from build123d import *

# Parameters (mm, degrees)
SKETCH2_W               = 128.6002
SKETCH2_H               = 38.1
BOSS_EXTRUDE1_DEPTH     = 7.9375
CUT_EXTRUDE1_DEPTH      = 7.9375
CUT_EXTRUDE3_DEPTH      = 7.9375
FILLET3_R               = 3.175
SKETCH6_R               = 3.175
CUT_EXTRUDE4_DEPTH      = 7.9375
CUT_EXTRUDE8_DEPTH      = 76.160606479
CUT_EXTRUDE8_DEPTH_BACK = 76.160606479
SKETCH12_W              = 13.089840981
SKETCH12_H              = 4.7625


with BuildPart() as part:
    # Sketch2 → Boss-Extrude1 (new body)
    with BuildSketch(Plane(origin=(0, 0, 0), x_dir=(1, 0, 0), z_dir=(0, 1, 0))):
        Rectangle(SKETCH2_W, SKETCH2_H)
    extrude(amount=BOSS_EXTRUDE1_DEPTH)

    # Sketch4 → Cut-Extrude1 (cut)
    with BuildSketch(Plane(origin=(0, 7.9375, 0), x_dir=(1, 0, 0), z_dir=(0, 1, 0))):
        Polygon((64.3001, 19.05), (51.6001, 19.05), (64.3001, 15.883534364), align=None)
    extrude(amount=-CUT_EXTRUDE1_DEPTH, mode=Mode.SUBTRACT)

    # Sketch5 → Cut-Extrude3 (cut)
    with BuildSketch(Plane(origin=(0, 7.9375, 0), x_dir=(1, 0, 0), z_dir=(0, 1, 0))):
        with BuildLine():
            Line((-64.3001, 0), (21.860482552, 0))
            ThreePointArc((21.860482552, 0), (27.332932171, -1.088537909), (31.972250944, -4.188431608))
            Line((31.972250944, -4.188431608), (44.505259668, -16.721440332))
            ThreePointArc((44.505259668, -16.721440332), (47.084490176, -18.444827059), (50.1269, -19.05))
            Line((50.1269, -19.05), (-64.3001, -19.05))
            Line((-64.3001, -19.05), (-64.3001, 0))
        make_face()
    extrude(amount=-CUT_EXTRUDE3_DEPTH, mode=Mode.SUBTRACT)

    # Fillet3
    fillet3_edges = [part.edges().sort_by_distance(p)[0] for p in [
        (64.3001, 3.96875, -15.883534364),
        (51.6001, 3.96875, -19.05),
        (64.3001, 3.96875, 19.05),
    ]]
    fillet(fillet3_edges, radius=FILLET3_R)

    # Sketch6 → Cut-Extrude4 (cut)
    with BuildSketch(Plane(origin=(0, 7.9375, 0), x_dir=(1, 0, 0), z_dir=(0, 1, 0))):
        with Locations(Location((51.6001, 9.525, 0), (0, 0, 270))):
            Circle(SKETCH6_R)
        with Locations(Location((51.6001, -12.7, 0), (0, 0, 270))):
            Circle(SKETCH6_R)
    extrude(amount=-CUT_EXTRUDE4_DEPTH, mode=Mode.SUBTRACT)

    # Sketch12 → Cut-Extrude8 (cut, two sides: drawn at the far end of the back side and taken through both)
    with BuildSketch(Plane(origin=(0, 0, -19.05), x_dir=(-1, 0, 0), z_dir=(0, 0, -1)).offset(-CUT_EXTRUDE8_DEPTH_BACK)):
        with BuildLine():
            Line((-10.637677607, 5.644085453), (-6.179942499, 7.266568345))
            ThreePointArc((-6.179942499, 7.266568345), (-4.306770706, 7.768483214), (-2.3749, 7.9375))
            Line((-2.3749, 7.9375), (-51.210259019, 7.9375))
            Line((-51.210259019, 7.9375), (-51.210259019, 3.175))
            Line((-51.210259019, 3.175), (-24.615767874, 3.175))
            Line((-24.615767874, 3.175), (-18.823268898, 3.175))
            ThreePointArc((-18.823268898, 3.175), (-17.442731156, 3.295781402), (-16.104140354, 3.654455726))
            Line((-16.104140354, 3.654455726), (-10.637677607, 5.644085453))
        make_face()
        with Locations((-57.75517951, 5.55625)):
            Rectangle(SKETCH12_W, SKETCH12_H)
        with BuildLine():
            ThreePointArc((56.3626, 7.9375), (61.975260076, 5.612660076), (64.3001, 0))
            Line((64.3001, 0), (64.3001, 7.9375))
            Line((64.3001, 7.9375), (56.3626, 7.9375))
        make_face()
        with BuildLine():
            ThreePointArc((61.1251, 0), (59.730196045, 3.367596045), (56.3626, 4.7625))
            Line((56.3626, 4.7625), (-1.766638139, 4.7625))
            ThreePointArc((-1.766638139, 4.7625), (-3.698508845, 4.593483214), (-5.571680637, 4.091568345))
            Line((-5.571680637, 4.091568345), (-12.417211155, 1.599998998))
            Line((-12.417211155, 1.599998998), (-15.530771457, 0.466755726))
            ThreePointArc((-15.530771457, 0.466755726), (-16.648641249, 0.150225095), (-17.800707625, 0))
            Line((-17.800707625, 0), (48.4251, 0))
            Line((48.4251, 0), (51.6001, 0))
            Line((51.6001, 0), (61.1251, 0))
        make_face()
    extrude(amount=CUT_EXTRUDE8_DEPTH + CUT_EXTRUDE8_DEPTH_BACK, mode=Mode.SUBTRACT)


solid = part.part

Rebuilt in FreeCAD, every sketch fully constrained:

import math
import FreeCAD as App
import Part
import Sketcher
Q = App.Units.Quantity


def edges_at(feature, points):
    """Names of the edges that pass closest to the given points."""
    edges = feature.Shape.Edges
    near = lambda p: min(range(len(edges)), key=lambda i: edges[i].distToShape(Part.Vertex(*p))[0])
    return sorted({f"Edge{near(p) + 1}" for p in points})


def add_polygon(sketch, points):
    """Adds a closed chain of lines whose ends are joined by coincident constraints."""
    first, n = sketch.GeometryCount, len(points)
    for a, b in zip(points, points[1:] + points[:1]):
        sketch.addGeometry(Part.LineSegment(App.Vector(*a, 0), App.Vector(*b, 0)), False)
    for i in range(n):
        sketch.addConstraint(Sketcher.Constraint("Coincident", first + i, 2, first + (i + 1) % n, 1))

doc = App.newDocument("Part")
params = doc.addObject("Spreadsheet::Sheet", "Params")
for row, (alias, value) in enumerate([
    ("sketch1_height", "1.5 in"),
    ("sketch1_width", "5.063 in"),
    ("pad1_length", "0.3125 in"),
    ("sketch2_width", "0.5 in"),
    ("pocket1_length", "0.3125 in"),
    ("sketch3_radius", "0.313 in"),
    ("sketch3_radius2", "0.563 in"),
    ("sketch3_height", "0.75 in"),
    ("sketch3_width", "4.505 in"),
    ("pocket2_length", "0.3125 in"),
    ("fillet_radius", "0.125 in"),
    ("sketch4_diameter", "0.25 in"),
    ("pocket3_length", "0.3125 in"),
    ("sketch5_radius", "0.438 in"),
    ("sketch5_radius2", "0.313 in"),
    ("sketch5_radius3", "0.3125 in"),
    ("sketch5_radius4", "0.1875 in"),
    ("sketch5_width", "2.438 in"),
], start=1):
    params.set(f"A{row}", alias)
    params.set(f"B{row}", "=" + value)
    params.setAlias(f"B{row}", alias)

body = doc.addObject("PartDesign::Body", "Body")

sketch1 = body.newObject("Sketcher::SketchObject", "Sketch")
sketch1.AttachmentSupport = (doc.getObject("XZ_Plane"), [""])
sketch1.MapMode = "FlatFace"
add_polygon(sketch1, [(-64, -19), (-64, 19), (64, 19), (64, -19)])
sketch1.addConstraint([
    Sketcher.Constraint("Vertical", 0),
    Sketcher.Constraint("Horizontal", 1),
    Sketcher.Constraint("Vertical", 2),
    Sketcher.Constraint("Horizontal", 3),
    Sketcher.Constraint("Symmetric", 0, 2, 2, 2, -1, 1),
    Sketcher.Constraint("DistanceY", 0, 1, 0, 2, Q("1.5 in")),
    Sketcher.Constraint("DistanceX", 1, 1, 1, 2, Q("5.063 in")),
])
sketch1.setExpression("Constraints[9]", "Params.sketch1_height")
sketch1.setExpression("Constraints[10]", "Params.sketch1_width")
pad1 = body.newObject("PartDesign::Pad", "Pad")
pad1.Profile = sketch1
pad1.setExpression("Length", "Params.pad1_length")
pad1.Reversed = True

sketch2 = body.newObject("Sketcher::SketchObject", "Sketch001")
sketch2.AttachmentSupport = (doc.getObject("XZ_Plane"), [""])
sketch2.MapMode = "FlatFace"
sketch2.AttachmentOffset = App.Placement(App.Vector(0, 0, -0.3125 * 25.4), App.Rotation())
add_polygon(sketch2, [(64.3, -19.1), (51.6, -19.1), (64.3, -15.9)])
sketch2.addConstraint([
    Sketcher.Constraint("Horizontal", 0),
    Sketcher.Constraint("Vertical", 2),
    Sketcher.Constraint("DistanceX", 0, 2, 0, 1, Q("0.5 in")),
    Sketcher.Constraint("Angle", 1, Q("14 deg")),
    Sketcher.Constraint("DistanceY", 0, 2, -1, 1, Q("0.75 in")),
    Sketcher.Constraint("DistanceX", -1, 1, 0, 2, Q("2.0315 in")),
])
sketch2.setExpression("Constraints[5]", "Params.sketch2_width")
pocket1 = body.newObject("PartDesign::Pocket", "Pocket")
pocket1.Profile = sketch2
pocket1.setExpression("Length", "Params.pocket1_length")
pocket1.Reversed = True

sketch3 = body.newObject("Sketcher::SketchObject", "Sketch002")
sketch3.AttachmentSupport = (doc.getObject("XZ_Plane"), [""])
sketch3.MapMode = "FlatFace"
sketch3.AttachmentOffset = App.Placement(App.Vector(0, 0, -0.3125 * 25.4), App.Rotation())
sketch3.addGeometry([
    Part.LineSegment(App.Vector(22, 0, 0), App.Vector(-64, 0, 0)),
    Part.LineSegment(App.Vector(-64, 0, 0), App.Vector(-64, 19, 0)),
    Part.LineSegment(App.Vector(-64, 19, 0), App.Vector(50, 19, 0)),
    Part.ArcOfCircle(Part.Circle(App.Vector(50, 11, 0), App.Vector(0, 0, 1), 8), math.radians(90), math.radians(135)),
    Part.LineSegment(App.Vector(45, 17, 0), App.Vector(32, 4, 0)),
    Part.ArcOfCircle(Part.Circle(App.Vector(22, 14, 0), App.Vector(0, 0, 1), 14), math.radians(-90), math.radians(-45)),
], False)
sketch3.addConstraint([
    Sketcher.Constraint("Coincident", 0, 2, 1, 1),
    Sketcher.Constraint("Coincident", 1, 2, 2, 1),
    Sketcher.Constraint("Tangent", 2, 2, 3, 1),
    Sketcher.Constraint("Tangent", 3, 2, 4, 1),
    Sketcher.Constraint("Tangent", 4, 2, 5, 2),
    Sketcher.Constraint("Tangent", 5, 1, 0, 1),
    Sketcher.Constraint("Horizontal", 0),
    Sketcher.Constraint("Vertical", 1),
    Sketcher.Constraint("Horizontal", 2),
    Sketcher.Constraint("PointOnObject", 0, 2, -1),
    Sketcher.Constraint("Angle", 4, Q("-135 deg")),
    Sketcher.Constraint("Radius", 3, Q("0.313 in")),
    Sketcher.Constraint("Radius", 5, Q("0.563 in")),
    Sketcher.Constraint("DistanceY", 1, 1, 1, 2, Q("0.75 in")),
    Sketcher.Constraint("DistanceX", 2, 1, 2, 2, Q("4.505 in")),
    Sketcher.Constraint("DistanceX", -1, 1, 3, 3, Q("1.9735 in")),
])
sketch3.setExpression("Constraints[11]", "Params.sketch3_radius")
sketch3.setExpression("Constraints[12]", "Params.sketch3_radius2")
sketch3.setExpression("Constraints[13]", "Params.sketch3_height")
sketch3.setExpression("Constraints[14]", "Params.sketch3_width")
pocket2 = body.newObject("PartDesign::Pocket", "Pocket001")
pocket2.Profile = sketch3
pocket2.setExpression("Length", "Params.pocket2_length")
pocket2.Reversed = True
doc.recompute()

fillet = body.newObject("PartDesign::Fillet", "Fillet")
fillet.Base = (pocket2, edges_at(pocket2, [(64.3, 3.969, -15.884), (51.6, 3.969, -19.05), (64.3, 3.969, 19.05)]))
fillet.setExpression("Radius", "Params.fillet_radius")

sketch4 = body.newObject("Sketcher::SketchObject", "Sketch003")
sketch4.AttachmentSupport = (doc.getObject("XZ_Plane"), [""])
sketch4.MapMode = "FlatFace"
sketch4.AttachmentOffset = App.Placement(App.Vector(0, 0, -0.3125 * 25.4), App.Rotation())
sketch4.addGeometry([
    Part.Circle(App.Vector(51.6, -9.5, 0), App.Vector(0, 0, 1), 3.2),
    Part.Circle(App.Vector(51.6, 12.7, 0), App.Vector(0, 0, 1), 3.2),
], False)
sketch4.addConstraint([
    Sketcher.Constraint("Equal", 0, 1),
    Sketcher.Constraint("Vertical", 0, 3, 1, 3),
    Sketcher.Constraint("Diameter", 0, Q("0.25 in")),
    Sketcher.Constraint("DistanceY", -1, 1, 1, 3, Q("0.5 in")),
    Sketcher.Constraint("DistanceY", 0, 3, -1, 1, Q("0.375 in")),
    Sketcher.Constraint("DistanceX", -1, 1, 0, 3, Q("2.0315 in")),
])
sketch4.setExpression("Constraints[2]", "Params.sketch4_diameter")
pocket3 = body.newObject("PartDesign::Pocket", "Pocket002")
pocket3.Profile = sketch4
pocket3.setExpression("Length", "Params.pocket3_length")
pocket3.Reversed = True

sketch5 = body.newObject("Sketcher::SketchObject", "Sketch004")
sketch5.AttachmentSupport = (doc.getObject("XY_Plane"), [""])
sketch5.MapMode = "FlatFace"
sketch5.AttachmentOffset = App.Placement(App.Vector(0, 0, -0.75 * 25.4), App.Rotation())
sketch5.addGeometry([
    Part.LineSegment(App.Vector(10.6, 5.6, 0), App.Vector(6.2, 7.3, 0)),
    Part.ArcOfCircle(Part.Circle(App.Vector(2.4, -3.2, 0), App.Vector(0, 0, 1), 11.1), math.radians(70), math.radians(90)),
    Part.LineSegment(App.Vector(2.4, 7.9, 0), App.Vector(64.3, 7.9, 0)),
    Part.LineSegment(App.Vector(64.3, 7.9, 0), App.Vector(64.3, 3.2, 0)),
    Part.LineSegment(App.Vector(64.3, 3.2, 0), App.Vector(18.8, 3.2, 0)),
    Part.ArcOfCircle(Part.Circle(App.Vector(18.8, 11.1, 0), App.Vector(0, 0, 1), 8), math.radians(-110), math.radians(-90)),
    Part.LineSegment(App.Vector(16.1, 3.7, 0), App.Vector(10.6, 5.6, 0)),
    Part.ArcOfCircle(Part.Circle(App.Vector(-56.4, 0, 0), App.Vector(0, 0, 1), 7.9), math.radians(90), math.radians(180)),
    Part.LineSegment(App.Vector(-64.3, 0, 0), App.Vector(-64.3, 7.9, 0)),
    Part.LineSegment(App.Vector(-64.3, 7.9, 0), App.Vector(-56.4, 7.9, 0)),
    Part.ArcOfCircle(Part.Circle(App.Vector(-56.4, 0, 0), App.Vector(0, 0, 1), 4.8), math.radians(90), math.radians(180)),
    Part.LineSegment(App.Vector(-56.4, 4.8, 0), App.Vector(1.8, 4.8, 0)),
    Part.ArcOfCircle(Part.Circle(App.Vector(1.8, -6.4, 0), App.Vector(0, 0, 1), 11.1), math.radians(70), math.radians(90)),
    Part.LineSegment(App.Vector(5.6, 4.1, 0), App.Vector(12.4, 1.6, 0)),
    Part.LineSegment(App.Vector(12.4, 1.6, 0), App.Vector(15.5, 0.5, 0)),
    Part.ArcOfCircle(Part.Circle(App.Vector(18.2, 7.9, 0), App.Vector(0, 0, 1), 8), math.radians(-110), math.radians(-93.24)),
    Part.LineSegment(App.Vector(17.8, 0, 0), App.Vector(-61.1, 0, 0)),
], False)
sketch5.addConstraint([
    Sketcher.Constraint("Tangent", 0, 2, 1, 1),
    Sketcher.Constraint("Tangent", 1, 2, 2, 1),
    Sketcher.Constraint("Coincident", 2, 2, 3, 1),
    Sketcher.Constraint("Coincident", 3, 2, 4, 1),
    Sketcher.Constraint("Tangent", 4, 2, 5, 2),
    Sketcher.Constraint("Tangent", 5, 1, 6, 1),
    Sketcher.Constraint("Coincident", 6, 2, 0, 1),
    Sketcher.Constraint("Tangent", 7, 2, 8, 1),
    Sketcher.Constraint("Coincident", 8, 2, 9, 1),
    Sketcher.Constraint("Tangent", 9, 2, 7, 1),
    Sketcher.Constraint("Tangent", 10, 1, 11, 1),
    Sketcher.Constraint("Tangent", 11, 2, 12, 2),
    Sketcher.Constraint("Tangent", 12, 1, 13, 1),
    Sketcher.Constraint("Coincident", 13, 2, 14, 1),
    Sketcher.Constraint("Tangent", 14, 2, 15, 1),
    Sketcher.Constraint("Coincident", 15, 2, 16, 1),
    Sketcher.Constraint("Coincident", 16, 2, 10, 2),
    Sketcher.Constraint("Horizontal", 2),
    Sketcher.Constraint("Vertical", 3),
    Sketcher.Constraint("Horizontal", 4),
    Sketcher.Constraint("Vertical", 8),
    Sketcher.Constraint("Horizontal", 9),
    Sketcher.Constraint("Horizontal", 11),
    Sketcher.Constraint("Horizontal", 16),
    Sketcher.Constraint("Coincident", 10, 3, 7, 3),
    Sketcher.Constraint("Equal", 1, 12),
    Sketcher.Constraint("Equal", 5, 15),
    Sketcher.Constraint("Symmetric", 2, 2, 8, 2, -2),
    Sketcher.Constraint("PointOnObject", 7, 3, -1),
    Sketcher.Constraint("PointOnObject", 15, 2, -1),
    Sketcher.Constraint("Parallel", 0, 6),
    Sketcher.Constraint("Parallel", 6, 13),
    Sketcher.Constraint("Parallel", 13, 14),
    Sketcher.Constraint("Horizontal", 15, 3, 1, 2),
    Sketcher.Constraint("Angle", 0, Q("160 deg")),
    Sketcher.Constraint("Radius", 1, Q("0.438 in")),
    Sketcher.Constraint("Radius", 5, Q("0.313 in")),
    Sketcher.Constraint("Radius", 7, Q("0.3125 in")),
    Sketcher.Constraint("Radius", 10, Q("0.1875 in")),
    Sketcher.Constraint("DistanceX", 2, 1, 2, 2, Q("2.438 in")),
    Sketcher.Constraint("DistanceY", 3, 2, 3, 1, Q("0.1875 in")),
    Sketcher.Constraint("DistanceX", 7, 3, -1, 1, Q("2.219 in")),
    Sketcher.Constraint("DistanceX", 1, 3, 15, 3, Q("0.625 in")),
    Sketcher.Constraint("DistanceY", -1, 1, 13, 2, 1.599999),
    Sketcher.Constraint("Distance", 6, 5.817288),
])
sketch5.setExpression("Constraints[35]", "Params.sketch5_radius")
sketch5.setExpression("Constraints[36]", "Params.sketch5_radius2")
sketch5.setExpression("Constraints[37]", "Params.sketch5_radius3")
sketch5.setExpression("Constraints[38]", "Params.sketch5_radius4")
sketch5.setExpression("Constraints[39]", "Params.sketch5_width")
pocket4 = body.newObject("PartDesign::Pocket", "Pocket003")
pocket4.Profile = sketch5
pocket4.Type = "ThroughAll"
pocket4.Midplane = True

doc.recompute()
